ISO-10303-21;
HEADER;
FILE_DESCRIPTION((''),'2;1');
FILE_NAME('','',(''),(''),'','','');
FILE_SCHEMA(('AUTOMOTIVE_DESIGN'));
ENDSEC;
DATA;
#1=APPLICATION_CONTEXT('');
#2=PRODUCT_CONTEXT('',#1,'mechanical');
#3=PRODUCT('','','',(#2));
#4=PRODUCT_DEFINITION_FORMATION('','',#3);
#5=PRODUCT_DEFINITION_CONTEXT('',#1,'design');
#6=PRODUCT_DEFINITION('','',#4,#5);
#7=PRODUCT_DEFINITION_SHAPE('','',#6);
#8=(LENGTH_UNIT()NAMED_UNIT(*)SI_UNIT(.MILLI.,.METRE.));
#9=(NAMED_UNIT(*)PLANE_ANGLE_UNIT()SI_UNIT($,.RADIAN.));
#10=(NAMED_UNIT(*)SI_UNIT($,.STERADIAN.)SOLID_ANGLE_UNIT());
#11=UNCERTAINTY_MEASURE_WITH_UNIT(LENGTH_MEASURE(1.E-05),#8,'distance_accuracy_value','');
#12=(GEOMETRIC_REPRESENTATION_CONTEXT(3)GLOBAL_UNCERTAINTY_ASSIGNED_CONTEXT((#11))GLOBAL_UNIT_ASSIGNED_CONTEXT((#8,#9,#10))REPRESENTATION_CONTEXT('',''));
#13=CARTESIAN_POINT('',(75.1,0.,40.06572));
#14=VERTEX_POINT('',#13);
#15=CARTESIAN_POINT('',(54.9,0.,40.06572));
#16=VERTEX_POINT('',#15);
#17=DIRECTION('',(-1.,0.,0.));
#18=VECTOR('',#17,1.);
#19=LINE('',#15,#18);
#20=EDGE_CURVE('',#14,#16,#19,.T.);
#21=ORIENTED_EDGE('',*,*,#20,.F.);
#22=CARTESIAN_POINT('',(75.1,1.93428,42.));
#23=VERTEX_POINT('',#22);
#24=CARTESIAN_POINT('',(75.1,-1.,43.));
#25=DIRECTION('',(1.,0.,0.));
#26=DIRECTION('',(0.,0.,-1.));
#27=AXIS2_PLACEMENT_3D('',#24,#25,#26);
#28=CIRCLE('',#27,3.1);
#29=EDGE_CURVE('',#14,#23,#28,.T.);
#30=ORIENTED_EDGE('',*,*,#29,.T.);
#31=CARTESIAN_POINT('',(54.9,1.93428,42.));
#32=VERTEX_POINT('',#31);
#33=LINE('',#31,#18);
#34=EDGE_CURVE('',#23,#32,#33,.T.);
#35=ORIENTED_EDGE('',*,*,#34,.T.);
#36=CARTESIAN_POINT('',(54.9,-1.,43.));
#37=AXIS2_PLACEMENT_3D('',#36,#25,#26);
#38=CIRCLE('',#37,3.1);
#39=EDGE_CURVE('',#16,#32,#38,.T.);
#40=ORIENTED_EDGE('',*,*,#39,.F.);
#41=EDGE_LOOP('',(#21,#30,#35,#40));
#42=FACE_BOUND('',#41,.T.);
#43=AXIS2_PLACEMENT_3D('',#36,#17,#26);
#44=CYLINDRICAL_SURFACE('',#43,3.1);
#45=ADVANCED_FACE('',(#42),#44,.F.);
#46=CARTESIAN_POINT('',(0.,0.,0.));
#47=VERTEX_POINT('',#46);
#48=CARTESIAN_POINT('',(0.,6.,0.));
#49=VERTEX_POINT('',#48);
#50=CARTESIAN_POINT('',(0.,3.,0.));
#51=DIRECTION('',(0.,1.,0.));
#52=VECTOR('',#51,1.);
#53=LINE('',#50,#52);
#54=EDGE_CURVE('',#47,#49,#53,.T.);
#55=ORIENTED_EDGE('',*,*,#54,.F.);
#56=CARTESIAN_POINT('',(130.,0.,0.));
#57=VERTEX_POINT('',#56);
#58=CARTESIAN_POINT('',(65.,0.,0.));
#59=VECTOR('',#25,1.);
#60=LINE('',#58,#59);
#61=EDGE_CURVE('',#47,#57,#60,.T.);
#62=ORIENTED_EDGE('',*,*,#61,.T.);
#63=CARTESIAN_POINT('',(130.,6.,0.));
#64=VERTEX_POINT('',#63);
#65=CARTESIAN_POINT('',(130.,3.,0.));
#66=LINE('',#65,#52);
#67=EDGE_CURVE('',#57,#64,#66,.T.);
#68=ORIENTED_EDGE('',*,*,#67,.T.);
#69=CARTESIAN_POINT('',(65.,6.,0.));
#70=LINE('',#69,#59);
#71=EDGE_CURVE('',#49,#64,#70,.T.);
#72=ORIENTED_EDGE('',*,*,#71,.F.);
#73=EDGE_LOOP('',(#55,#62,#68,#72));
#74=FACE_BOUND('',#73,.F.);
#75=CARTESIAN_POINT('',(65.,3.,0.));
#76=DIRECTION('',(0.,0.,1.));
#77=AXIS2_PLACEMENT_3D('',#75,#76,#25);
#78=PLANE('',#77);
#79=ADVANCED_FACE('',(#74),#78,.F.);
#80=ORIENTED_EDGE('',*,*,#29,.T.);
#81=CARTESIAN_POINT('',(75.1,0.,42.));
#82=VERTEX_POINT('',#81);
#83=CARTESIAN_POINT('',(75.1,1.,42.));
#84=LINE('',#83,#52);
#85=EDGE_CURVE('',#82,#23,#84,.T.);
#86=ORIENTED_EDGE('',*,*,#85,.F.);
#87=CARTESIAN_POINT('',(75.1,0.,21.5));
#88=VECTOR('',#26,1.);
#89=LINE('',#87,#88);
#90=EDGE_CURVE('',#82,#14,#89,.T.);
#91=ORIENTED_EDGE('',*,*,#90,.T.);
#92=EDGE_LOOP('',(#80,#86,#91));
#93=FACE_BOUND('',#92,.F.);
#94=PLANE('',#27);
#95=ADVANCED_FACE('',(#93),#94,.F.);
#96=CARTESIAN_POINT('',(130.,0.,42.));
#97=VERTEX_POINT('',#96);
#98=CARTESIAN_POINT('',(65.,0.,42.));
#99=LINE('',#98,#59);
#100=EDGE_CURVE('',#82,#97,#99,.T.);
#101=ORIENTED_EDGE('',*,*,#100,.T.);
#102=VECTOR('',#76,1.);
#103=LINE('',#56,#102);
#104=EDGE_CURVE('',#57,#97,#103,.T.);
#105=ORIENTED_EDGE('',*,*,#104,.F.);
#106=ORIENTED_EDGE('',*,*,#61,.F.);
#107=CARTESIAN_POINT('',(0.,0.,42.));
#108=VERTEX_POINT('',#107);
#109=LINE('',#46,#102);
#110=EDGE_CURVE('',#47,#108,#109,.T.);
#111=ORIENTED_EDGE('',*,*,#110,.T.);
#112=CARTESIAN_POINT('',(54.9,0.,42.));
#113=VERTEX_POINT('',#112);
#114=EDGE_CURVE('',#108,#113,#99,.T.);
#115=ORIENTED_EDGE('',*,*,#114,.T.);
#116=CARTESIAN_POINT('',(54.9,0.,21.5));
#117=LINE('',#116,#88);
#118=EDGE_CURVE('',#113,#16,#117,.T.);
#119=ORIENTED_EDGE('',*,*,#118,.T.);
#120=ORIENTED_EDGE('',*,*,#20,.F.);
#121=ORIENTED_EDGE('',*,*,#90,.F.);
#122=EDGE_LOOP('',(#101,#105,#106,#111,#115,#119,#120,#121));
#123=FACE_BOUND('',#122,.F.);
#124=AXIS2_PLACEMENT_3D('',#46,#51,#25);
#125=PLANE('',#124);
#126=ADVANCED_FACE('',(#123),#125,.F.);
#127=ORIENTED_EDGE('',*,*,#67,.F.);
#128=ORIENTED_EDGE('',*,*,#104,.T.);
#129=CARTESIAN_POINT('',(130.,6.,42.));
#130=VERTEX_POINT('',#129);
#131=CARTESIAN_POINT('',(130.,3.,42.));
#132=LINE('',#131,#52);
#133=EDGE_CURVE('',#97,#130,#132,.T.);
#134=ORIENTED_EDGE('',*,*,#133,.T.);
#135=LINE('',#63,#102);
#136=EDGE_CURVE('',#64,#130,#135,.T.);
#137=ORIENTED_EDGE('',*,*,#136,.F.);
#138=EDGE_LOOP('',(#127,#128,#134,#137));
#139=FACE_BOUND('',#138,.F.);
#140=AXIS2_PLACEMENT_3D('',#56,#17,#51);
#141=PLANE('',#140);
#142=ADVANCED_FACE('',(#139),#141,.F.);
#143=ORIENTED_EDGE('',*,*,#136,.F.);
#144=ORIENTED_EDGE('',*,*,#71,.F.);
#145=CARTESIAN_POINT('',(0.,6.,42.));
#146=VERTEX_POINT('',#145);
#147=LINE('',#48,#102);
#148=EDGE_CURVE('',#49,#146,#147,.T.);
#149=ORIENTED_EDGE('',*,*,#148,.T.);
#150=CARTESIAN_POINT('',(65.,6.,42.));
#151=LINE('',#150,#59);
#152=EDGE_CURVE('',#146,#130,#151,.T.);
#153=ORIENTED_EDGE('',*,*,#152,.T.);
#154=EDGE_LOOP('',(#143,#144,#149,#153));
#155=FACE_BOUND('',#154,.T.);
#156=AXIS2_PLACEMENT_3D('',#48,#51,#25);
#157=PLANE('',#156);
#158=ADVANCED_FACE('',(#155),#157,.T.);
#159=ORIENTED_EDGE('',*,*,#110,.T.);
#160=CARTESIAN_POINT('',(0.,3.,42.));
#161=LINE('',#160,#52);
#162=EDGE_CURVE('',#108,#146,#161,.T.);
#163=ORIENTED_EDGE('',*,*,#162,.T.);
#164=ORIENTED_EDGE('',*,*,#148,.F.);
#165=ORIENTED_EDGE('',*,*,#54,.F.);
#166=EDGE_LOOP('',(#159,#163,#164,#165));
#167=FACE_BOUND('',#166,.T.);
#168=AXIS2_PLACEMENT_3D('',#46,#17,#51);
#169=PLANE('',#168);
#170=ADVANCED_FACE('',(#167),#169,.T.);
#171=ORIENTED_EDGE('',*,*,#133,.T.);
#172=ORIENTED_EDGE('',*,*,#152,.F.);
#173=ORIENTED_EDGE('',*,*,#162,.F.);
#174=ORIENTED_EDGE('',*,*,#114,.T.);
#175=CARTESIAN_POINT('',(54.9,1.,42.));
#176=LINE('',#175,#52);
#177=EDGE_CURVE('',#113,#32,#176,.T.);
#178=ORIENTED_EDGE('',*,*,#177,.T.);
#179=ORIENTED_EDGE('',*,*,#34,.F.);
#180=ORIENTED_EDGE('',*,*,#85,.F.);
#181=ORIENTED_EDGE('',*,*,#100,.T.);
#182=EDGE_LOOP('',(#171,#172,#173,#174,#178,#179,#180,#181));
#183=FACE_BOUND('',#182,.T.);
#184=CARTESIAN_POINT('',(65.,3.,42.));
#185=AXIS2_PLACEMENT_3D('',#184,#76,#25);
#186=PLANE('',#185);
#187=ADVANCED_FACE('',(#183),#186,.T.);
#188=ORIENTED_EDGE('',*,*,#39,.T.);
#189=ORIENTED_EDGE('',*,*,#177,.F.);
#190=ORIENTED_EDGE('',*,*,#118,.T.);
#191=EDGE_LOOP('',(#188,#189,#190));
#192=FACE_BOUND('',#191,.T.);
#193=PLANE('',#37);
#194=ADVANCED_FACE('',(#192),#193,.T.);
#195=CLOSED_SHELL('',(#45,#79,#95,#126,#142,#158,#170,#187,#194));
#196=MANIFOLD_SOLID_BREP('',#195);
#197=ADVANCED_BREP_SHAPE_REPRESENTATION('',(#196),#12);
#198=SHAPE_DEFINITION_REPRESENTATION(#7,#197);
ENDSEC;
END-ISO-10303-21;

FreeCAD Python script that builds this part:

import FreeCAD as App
import Part
import Sketcher

V = App.Vector
Q = App.Units.Quantity

doc = App.newDocument("Part")
params = doc.addObject("Spreadsheet::Sheet", "Params")
for row, (alias, value) in enumerate([
    ("sketch1_diameter", "6.2 mm"),
    ("pad1_length", "20.2 mm"),
    ("sketch2_width", "130 mm"),
    ("sketch2_height", "6 mm"),
    ("pad2_length", "42 mm"),
], start=1):
    params.set(f"A{row}", alias)
    params.set(f"B{row}", "=" + value)
    params.setAlias(f"B{row}", alias)

body = doc.addObject("PartDesign::Body", "Body")

# Sketch on YZ plane
sketch1 = body.newObject("Sketcher::SketchObject", "Sketch")
sketch1.AttachmentSupport = (doc.getObject("YZ_Plane"), [""])
sketch1.MapMode = "FlatFace"
sketch1.AttachmentOffset = App.Placement(V(0, 0, 54.9), App.Rotation())
sketch1.addGeometry(Part.Circle(V(-1, 43, 0), V(0, 0, 1), 3.1), False)
sketch1.addConstraint(Sketcher.Constraint("Diameter", 0, Q("6.2 mm")))
sketch1.addConstraint(Sketcher.Constraint("DistanceX", 0, 3, -1, 1, Q("1 mm")))
sketch1.addConstraint(Sketcher.Constraint("DistanceY", -1, 1, 0, 3, Q("43 mm")))
sketch1.setExpression("Constraints[0]", "Params.sketch1_diameter")
pad1 = body.newObject("PartDesign::Pad", "Pad")
pad1.Profile = sketch1
pad1.setExpression("Length", "Params.pad1_length")
body2 = doc.addObject("PartDesign::Body", "Body001")

# Sketch on XY plane
sketch2 = body2.newObject("Sketcher::SketchObject", "Sketch001")
sketch2.AttachmentSupport = (doc.getObject("XY_Plane001"), [""])
sketch2.MapMode = "FlatFace"
sketch2.addGeometry(Part.LineSegment(V(0, 6, 0), V(0, 0, 0)), False)
sketch2.addGeometry(Part.LineSegment(V(0, 0, 0), V(130, 0, 0)), False)
sketch2.addGeometry(Part.LineSegment(V(130, 0, 0), V(130, 6, 0)), False)
sketch2.addGeometry(Part.LineSegment(V(130, 6, 0), V(0, 6, 0)), False)
sketch2.addConstraint(Sketcher.Constraint("Coincident", 0, 2, 1, 1))
sketch2.addConstraint(Sketcher.Constraint("Coincident", 1, 2, 2, 1))
sketch2.addConstraint(Sketcher.Constraint("Coincident", 2, 2, 3, 1))
sketch2.addConstraint(Sketcher.Constraint("Coincident", 3, 2, 0, 1))
sketch2.addConstraint(Sketcher.Constraint("Vertical", 0))
sketch2.addConstraint(Sketcher.Constraint("Horizontal", 1))
sketch2.addConstraint(Sketcher.Constraint("Vertical", 2))
sketch2.addConstraint(Sketcher.Constraint("Horizontal", 3))
sketch2.addConstraint(Sketcher.Constraint("Coincident", 0, 2, -1, 1))
sketch2.addConstraint(Sketcher.Constraint("DistanceX", 1, 1, 1, 2, Q("130 mm")))
sketch2.addConstraint(Sketcher.Constraint("DistanceY", 0, 2, 0, 1, Q("6 mm")))
sketch2.setExpression("Constraints[9]", "Params.sketch2_width")
sketch2.setExpression("Constraints[10]", "Params.sketch2_height")
pad2 = body2.newObject("PartDesign::Pad", "Pad001")
pad2.Profile = sketch2
pad2.setExpression("Length", "Params.pad2_length")
doc.recompute()

boolean = body2.newObject("PartDesign::Boolean", "Boolean")
boolean.Type = "Cut"
boolean.addObjects([body])

doc.recompute()
